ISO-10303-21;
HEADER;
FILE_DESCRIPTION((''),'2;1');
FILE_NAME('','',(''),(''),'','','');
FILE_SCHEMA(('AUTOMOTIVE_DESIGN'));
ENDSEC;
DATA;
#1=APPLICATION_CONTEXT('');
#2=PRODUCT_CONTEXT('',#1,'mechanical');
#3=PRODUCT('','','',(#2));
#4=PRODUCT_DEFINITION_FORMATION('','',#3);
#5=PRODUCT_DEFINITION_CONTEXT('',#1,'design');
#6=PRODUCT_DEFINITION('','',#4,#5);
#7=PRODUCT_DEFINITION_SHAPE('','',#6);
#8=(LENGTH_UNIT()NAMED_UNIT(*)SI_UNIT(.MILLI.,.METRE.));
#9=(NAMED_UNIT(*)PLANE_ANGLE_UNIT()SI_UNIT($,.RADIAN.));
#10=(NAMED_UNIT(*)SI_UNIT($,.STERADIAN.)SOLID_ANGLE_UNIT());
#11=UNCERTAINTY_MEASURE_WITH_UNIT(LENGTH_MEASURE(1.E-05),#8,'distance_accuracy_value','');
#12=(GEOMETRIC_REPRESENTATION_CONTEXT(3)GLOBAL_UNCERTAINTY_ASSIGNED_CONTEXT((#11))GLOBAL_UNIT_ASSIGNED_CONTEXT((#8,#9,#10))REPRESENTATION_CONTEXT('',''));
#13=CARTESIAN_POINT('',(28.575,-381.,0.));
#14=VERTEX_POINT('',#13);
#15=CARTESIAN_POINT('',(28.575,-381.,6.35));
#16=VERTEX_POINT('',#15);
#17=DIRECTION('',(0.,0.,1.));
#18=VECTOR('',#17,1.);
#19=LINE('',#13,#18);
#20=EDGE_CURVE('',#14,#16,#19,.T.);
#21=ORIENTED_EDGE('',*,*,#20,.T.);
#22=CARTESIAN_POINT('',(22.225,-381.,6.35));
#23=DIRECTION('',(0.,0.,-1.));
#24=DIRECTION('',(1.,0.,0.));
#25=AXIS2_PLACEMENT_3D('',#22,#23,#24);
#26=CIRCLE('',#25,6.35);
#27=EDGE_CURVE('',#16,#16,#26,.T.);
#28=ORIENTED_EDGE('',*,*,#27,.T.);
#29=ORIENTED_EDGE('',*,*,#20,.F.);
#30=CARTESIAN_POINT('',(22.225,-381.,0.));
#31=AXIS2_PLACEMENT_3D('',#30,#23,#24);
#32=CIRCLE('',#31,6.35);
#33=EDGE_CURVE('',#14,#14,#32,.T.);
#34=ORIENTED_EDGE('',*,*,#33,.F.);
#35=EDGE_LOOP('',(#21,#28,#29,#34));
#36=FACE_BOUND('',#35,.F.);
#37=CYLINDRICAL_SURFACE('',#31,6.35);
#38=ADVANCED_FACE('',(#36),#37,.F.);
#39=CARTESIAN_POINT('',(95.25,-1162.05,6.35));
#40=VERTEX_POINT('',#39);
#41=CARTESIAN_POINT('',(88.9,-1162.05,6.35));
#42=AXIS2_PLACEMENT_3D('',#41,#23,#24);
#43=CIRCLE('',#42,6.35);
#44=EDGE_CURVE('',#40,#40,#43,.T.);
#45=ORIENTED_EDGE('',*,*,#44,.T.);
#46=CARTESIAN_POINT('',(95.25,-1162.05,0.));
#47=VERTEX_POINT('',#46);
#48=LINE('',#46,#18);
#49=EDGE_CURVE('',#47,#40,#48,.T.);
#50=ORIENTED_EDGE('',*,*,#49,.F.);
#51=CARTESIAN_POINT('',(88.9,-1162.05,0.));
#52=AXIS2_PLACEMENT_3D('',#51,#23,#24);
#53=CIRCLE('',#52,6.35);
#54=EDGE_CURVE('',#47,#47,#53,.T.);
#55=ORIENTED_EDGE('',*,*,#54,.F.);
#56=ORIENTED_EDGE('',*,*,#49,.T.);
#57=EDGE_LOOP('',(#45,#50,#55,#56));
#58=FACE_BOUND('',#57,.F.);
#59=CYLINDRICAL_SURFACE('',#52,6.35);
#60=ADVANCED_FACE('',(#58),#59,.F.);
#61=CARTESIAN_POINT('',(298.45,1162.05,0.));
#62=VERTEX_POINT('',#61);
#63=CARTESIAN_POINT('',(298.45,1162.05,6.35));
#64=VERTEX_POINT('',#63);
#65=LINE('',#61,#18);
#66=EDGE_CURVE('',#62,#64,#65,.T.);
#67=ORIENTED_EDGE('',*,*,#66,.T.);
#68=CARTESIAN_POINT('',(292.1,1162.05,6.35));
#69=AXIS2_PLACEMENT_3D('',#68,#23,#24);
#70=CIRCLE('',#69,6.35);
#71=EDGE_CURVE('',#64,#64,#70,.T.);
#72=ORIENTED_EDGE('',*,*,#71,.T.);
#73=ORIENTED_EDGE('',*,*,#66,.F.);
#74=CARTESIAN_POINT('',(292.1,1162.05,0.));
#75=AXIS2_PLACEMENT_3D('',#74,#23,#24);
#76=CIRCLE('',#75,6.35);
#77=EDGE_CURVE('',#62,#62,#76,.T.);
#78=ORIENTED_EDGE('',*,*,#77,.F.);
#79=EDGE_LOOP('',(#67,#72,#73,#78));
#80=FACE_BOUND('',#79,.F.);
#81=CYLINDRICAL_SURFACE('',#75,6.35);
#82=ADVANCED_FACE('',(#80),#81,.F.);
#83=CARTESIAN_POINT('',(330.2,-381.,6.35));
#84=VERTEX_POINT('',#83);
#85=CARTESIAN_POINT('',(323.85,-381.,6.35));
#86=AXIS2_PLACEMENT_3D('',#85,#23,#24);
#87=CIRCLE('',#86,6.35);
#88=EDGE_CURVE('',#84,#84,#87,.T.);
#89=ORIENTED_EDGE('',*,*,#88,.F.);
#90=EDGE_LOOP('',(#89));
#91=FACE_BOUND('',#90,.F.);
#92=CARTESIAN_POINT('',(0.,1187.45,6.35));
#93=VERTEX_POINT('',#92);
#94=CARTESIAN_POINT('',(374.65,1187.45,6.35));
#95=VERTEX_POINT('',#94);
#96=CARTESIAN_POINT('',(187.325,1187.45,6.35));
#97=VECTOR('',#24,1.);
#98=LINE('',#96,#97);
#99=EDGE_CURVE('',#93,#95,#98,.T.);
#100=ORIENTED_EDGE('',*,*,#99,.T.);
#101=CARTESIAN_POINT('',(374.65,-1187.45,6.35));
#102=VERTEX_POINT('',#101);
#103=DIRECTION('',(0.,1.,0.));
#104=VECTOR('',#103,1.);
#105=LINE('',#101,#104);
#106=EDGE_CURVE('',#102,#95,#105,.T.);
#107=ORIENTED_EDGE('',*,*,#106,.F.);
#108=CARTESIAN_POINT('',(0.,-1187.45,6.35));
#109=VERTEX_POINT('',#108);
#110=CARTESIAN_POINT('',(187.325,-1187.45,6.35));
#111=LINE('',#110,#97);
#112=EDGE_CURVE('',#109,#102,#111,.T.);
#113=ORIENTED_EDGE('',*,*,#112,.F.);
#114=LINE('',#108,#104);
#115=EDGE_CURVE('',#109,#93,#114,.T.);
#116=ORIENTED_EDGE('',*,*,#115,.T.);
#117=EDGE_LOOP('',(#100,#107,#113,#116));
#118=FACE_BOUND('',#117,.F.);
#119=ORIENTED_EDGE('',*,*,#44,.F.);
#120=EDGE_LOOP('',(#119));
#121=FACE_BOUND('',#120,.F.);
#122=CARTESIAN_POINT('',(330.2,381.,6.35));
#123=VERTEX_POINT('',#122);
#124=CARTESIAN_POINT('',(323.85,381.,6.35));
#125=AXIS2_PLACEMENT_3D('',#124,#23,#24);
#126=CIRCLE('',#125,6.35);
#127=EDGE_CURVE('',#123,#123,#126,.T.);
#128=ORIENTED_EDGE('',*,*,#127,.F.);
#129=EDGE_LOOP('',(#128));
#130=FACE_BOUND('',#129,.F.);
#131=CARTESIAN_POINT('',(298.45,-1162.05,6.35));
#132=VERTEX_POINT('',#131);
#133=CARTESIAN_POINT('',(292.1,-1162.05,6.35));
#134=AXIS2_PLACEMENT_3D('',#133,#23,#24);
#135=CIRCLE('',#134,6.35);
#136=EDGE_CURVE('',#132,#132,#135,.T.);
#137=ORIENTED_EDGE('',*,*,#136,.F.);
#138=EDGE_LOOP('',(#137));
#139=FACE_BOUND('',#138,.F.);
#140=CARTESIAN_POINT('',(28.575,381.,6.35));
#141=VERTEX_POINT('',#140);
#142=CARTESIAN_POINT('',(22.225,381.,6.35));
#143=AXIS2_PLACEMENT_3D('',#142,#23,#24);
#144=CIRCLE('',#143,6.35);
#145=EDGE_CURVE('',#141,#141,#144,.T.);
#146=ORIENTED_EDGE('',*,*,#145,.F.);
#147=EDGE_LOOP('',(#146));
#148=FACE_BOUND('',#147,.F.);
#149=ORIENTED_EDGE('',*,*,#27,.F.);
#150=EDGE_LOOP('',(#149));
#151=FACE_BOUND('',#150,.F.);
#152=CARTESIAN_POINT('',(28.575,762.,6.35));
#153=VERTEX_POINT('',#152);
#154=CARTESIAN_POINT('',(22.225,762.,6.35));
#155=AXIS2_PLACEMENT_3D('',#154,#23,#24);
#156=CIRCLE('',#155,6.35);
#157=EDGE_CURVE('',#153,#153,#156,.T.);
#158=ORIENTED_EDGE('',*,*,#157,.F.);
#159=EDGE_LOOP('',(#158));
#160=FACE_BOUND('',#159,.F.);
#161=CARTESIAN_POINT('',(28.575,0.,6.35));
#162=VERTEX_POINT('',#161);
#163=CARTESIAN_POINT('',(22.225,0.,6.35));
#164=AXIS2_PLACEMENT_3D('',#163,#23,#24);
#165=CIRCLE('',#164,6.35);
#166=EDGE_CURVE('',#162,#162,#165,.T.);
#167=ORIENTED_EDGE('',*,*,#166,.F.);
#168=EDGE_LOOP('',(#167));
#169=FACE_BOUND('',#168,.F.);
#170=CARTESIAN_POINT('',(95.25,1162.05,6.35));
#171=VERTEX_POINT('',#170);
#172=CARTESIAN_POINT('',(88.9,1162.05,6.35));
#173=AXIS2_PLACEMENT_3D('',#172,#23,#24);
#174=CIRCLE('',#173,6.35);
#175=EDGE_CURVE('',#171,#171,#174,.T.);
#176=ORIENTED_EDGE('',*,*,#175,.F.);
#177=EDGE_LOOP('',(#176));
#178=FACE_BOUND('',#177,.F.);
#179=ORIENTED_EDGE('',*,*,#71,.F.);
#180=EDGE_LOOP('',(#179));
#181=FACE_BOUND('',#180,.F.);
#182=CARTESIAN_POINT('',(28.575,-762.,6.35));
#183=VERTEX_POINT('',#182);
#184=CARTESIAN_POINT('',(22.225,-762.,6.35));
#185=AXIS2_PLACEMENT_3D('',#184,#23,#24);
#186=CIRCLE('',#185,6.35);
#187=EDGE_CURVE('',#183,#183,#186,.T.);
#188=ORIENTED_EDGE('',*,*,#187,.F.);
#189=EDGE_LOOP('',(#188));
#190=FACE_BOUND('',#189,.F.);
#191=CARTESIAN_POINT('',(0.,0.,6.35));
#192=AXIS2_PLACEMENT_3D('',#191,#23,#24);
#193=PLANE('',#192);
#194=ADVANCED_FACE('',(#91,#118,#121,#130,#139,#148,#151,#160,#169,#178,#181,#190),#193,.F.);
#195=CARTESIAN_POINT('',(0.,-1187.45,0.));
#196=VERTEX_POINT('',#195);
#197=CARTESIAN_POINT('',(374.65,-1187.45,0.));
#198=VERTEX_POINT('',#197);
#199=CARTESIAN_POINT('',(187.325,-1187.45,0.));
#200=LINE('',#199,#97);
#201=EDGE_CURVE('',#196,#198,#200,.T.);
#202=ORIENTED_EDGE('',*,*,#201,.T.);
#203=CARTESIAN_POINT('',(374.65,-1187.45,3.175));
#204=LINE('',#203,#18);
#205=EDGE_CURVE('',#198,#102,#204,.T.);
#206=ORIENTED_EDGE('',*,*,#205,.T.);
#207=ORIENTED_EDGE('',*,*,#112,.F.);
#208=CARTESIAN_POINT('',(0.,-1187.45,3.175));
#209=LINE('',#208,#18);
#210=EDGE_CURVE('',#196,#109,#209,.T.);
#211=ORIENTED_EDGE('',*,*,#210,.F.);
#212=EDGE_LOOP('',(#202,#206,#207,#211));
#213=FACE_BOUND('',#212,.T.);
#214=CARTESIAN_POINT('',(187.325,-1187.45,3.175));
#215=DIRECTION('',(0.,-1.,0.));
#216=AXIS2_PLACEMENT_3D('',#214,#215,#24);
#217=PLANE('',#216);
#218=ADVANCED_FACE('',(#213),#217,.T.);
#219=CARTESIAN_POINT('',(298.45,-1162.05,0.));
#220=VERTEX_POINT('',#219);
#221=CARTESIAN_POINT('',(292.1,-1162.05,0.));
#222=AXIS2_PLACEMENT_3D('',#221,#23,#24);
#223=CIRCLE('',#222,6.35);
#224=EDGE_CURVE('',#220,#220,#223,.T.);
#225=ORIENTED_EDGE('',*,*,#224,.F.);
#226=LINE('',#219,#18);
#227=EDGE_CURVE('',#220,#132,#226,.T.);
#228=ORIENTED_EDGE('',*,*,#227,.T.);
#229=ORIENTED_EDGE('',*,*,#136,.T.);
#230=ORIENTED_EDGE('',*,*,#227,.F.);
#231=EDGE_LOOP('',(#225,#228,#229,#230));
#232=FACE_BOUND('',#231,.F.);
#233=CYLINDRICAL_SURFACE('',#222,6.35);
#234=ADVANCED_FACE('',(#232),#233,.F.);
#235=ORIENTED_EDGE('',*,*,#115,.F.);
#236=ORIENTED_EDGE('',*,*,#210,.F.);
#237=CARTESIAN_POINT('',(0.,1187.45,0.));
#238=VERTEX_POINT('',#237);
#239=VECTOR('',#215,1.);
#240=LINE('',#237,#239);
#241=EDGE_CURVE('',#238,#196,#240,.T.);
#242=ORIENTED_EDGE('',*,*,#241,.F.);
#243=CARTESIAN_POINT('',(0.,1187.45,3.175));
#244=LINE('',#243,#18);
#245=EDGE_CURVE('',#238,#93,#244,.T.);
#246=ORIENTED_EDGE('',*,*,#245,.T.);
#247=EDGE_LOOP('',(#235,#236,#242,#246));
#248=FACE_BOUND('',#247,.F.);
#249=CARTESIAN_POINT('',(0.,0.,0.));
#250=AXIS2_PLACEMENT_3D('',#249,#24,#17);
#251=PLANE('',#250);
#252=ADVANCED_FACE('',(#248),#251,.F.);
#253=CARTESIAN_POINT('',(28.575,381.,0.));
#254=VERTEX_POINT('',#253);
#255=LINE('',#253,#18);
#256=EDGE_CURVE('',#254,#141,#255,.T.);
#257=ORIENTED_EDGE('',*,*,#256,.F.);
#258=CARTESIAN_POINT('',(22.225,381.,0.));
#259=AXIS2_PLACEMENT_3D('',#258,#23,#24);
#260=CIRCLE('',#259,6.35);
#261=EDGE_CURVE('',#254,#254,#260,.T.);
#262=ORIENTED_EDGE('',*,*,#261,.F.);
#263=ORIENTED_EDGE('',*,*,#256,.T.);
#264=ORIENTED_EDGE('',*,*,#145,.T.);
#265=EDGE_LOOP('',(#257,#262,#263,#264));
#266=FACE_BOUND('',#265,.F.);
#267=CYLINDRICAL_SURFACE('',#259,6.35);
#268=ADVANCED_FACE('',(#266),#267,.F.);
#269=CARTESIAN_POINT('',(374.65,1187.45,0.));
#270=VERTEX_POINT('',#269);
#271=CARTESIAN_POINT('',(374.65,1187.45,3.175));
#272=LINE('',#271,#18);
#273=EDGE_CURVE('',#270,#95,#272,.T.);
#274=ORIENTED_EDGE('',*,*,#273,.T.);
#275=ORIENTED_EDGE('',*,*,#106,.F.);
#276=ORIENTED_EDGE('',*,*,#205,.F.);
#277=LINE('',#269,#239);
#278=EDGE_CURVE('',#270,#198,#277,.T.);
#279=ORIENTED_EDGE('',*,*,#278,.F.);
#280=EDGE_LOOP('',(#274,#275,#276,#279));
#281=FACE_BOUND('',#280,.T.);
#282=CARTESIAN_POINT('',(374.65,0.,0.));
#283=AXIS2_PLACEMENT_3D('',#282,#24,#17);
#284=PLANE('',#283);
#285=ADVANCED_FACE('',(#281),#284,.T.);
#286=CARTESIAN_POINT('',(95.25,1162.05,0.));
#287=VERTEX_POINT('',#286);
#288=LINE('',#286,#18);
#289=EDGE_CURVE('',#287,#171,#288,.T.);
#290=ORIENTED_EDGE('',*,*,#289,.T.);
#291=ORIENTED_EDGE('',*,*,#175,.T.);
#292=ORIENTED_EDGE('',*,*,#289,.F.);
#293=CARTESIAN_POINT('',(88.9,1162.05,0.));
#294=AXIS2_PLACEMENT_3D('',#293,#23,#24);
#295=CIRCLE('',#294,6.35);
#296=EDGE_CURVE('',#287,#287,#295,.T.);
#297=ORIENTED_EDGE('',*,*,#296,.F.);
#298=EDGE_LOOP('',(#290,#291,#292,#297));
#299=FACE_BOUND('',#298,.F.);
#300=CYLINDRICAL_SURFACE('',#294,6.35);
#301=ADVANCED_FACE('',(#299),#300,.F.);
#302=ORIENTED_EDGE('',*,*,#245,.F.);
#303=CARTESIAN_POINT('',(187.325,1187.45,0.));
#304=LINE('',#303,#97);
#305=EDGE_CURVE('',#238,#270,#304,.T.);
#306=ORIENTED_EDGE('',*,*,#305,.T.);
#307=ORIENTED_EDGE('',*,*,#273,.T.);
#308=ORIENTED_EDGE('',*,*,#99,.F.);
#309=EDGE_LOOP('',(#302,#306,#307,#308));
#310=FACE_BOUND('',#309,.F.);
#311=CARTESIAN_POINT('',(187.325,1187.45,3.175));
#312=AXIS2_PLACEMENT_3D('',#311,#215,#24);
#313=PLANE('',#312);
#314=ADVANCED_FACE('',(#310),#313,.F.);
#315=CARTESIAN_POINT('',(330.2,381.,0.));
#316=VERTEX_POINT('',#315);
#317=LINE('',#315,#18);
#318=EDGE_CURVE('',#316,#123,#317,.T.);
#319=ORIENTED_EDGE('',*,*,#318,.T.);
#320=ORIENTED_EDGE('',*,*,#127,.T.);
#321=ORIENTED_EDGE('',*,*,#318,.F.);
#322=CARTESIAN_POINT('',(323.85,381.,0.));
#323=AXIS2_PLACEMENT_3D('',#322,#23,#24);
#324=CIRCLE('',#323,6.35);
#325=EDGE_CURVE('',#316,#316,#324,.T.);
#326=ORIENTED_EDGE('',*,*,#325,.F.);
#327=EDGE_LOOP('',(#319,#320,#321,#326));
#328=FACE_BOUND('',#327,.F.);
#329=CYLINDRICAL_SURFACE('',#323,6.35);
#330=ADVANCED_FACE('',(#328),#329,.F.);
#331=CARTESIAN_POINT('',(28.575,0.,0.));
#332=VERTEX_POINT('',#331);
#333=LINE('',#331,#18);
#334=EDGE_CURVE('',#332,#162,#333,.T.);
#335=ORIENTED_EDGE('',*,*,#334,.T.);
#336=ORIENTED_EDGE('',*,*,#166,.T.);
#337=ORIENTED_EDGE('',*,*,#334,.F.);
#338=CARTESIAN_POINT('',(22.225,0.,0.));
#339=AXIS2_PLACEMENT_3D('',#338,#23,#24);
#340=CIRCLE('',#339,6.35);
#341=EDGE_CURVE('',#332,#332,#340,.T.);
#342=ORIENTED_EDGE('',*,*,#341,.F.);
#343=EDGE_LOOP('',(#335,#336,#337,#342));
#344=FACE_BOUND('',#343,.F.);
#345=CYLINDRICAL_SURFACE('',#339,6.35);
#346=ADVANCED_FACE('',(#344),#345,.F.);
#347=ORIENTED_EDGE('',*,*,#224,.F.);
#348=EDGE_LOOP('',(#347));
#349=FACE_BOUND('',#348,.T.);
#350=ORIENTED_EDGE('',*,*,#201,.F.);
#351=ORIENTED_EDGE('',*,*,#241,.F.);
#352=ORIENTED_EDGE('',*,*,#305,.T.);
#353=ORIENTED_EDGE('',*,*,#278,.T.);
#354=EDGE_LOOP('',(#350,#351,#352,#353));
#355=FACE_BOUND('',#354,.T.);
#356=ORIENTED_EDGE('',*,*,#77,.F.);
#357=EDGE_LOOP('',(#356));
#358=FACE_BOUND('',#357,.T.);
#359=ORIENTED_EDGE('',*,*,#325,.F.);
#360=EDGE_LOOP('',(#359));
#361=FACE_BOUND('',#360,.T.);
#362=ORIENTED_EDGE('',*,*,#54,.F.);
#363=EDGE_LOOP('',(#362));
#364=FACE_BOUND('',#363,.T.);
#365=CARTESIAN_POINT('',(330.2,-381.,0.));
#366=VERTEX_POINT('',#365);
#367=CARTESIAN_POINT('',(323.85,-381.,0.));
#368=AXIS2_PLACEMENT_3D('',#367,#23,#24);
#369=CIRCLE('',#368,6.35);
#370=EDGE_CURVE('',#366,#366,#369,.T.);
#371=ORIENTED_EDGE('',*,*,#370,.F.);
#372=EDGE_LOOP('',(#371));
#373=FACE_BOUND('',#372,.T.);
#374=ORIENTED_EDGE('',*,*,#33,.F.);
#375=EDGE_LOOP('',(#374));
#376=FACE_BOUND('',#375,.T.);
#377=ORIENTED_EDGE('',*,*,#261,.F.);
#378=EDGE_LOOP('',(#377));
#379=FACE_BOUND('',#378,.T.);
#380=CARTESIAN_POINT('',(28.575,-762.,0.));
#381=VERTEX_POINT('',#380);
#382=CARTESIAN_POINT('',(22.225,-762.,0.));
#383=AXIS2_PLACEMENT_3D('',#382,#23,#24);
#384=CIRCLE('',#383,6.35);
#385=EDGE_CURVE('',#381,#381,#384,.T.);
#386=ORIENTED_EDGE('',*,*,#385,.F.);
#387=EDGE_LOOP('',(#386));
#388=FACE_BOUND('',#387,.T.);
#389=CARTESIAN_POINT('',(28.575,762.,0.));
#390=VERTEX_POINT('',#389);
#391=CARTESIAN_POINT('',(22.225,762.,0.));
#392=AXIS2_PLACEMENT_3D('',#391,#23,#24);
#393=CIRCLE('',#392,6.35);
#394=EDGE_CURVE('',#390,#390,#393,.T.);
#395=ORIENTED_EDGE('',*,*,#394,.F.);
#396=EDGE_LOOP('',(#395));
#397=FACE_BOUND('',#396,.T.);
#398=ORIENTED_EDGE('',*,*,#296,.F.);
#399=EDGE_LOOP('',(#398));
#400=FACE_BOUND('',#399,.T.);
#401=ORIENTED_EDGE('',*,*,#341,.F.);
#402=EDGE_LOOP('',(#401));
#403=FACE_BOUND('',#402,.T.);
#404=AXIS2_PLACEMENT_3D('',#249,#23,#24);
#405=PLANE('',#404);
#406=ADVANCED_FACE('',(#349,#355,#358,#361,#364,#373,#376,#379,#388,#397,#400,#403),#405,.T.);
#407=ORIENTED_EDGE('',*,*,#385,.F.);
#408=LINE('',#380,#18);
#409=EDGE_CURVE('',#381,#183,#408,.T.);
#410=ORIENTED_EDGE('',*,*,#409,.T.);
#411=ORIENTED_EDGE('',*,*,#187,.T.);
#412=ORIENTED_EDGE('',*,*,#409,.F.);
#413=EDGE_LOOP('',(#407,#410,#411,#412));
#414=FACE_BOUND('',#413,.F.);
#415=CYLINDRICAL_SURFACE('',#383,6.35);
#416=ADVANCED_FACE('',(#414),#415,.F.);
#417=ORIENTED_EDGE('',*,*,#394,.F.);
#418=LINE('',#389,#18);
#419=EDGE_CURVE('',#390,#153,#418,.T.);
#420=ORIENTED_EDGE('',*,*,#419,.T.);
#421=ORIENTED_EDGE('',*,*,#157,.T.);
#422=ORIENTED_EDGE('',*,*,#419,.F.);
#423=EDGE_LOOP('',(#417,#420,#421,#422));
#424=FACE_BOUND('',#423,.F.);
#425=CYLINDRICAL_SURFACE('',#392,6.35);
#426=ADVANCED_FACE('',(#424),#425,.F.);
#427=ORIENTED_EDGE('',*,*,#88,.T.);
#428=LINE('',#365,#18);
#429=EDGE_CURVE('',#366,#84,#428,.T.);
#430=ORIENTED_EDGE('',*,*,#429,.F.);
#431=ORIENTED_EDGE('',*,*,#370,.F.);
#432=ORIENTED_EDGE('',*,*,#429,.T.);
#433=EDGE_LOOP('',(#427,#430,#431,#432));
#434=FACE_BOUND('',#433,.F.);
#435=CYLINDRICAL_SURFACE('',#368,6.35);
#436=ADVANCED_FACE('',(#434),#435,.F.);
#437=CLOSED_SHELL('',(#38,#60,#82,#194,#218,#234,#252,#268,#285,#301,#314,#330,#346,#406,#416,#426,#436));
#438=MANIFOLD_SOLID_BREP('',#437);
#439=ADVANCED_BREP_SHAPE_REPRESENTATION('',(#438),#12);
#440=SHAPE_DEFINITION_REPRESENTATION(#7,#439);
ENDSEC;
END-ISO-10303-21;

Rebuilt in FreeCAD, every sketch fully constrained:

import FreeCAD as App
import Part
import Sketcher
Q = App.Units.Quantity

doc = App.newDocument("Part")
body = doc.addObject("PartDesign::Body", "Body")

# Sketch on XZ plane
sketch1 = doc.addObject("Sketcher::SketchObject", "Sketch")
body.addObject(sketch1)
sketch1.AttachmentSupport = (doc.XZ_Plane, [""])
sketch1.MapMode = "FlatFace"
sketch1.addGeometry([
    Part.LineSegment(App.Vector(0, 6, 0), App.Vector(0, 0, 0)),
    Part.LineSegment(App.Vector(0, 0, 0), App.Vector(375, 0, 0)),
    Part.LineSegment(App.Vector(375, 0, 0), App.Vector(375, 6, 0)),
    Part.LineSegment(App.Vector(375, 6, 0), App.Vector(0, 6, 0)),
], False)
sketch1.addConstraint([
    Sketcher.Constraint("Coincident", 0, 2, 1, 1),
    Sketcher.Constraint("Coincident", 1, 2, 2, 1),
    Sketcher.Constraint("Coincident", 2, 2, 3, 1),
    Sketcher.Constraint("Coincident", 3, 2, 0, 1),
    Sketcher.Constraint("Vertical", 0),
    Sketcher.Constraint("Horizontal", 1),
    Sketcher.Constraint("Vertical", 2),
    Sketcher.Constraint("Horizontal", 3),
    Sketcher.Constraint("Coincident", 0, 2, -1, 1),
    Sketcher.Constraint("DistanceX", 1, 1, 1, 2, Q("14.75 in")),
    Sketcher.Constraint("DistanceY", 0, 2, 0, 1, Q("0.25 in")),
])
pad1 = doc.addObject("PartDesign::Pad", "Pad")
body.addObject(pad1)
pad1.Profile = sketch1
pad1.Length = Q("93.5 in")
pad1.Midplane = True

# Sketch on XY plane
sketch2 = doc.addObject("Sketcher::SketchObject", "Sketch001")
body.addObject(sketch2)
sketch2.AttachmentSupport = (doc.XY_Plane, [""])
sketch2.MapMode = "FlatFace"
sketch2.addGeometry([
    Part.Circle(App.Vector(292, -1162, 0), App.Vector(0, 0, 1), 6),  # 0
    Part.Circle(App.Vector(89, -1162, 0), App.Vector(0, 0, 1), 6),  # 1
    Part.Circle(App.Vector(292, 1162, 0), App.Vector(0, 0, 1), 6),  # 2
    Part.Circle(App.Vector(89, 1162, 0), App.Vector(0, 0, 1), 6),  # 3
    Part.Circle(App.Vector(22, -381, 0), App.Vector(0, 0, 1), 6),  # 4
    Part.Circle(App.Vector(22, 381, 0), App.Vector(0, 0, 1), 6),  # 5
    Part.Circle(App.Vector(22, -762, 0), App.Vector(0, 0, 1), 6),  # 6
    Part.Circle(App.Vector(22, 0, 0), App.Vector(0, 0, 1), 6),  # 7
    Part.Circle(App.Vector(22, 762, 0), App.Vector(0, 0, 1), 6),  # 8
    Part.Circle(App.Vector(324, -381, 0), App.Vector(0, 0, 1), 6),  # 9
    Part.Circle(App.Vector(324, 381, 0), App.Vector(0, 0, 1), 6),  # 10
], False)
sketch2.addConstraint([
    Sketcher.Constraint("Equal", 0, 1),
    Sketcher.Constraint("Equal", 1, 2),
    Sketcher.Constraint("Equal", 2, 3),
    Sketcher.Constraint("Equal", 3, 4),
    Sketcher.Constraint("Equal", 4, 5),
    Sketcher.Constraint("Equal", 5, 6),
    Sketcher.Constraint("Equal", 6, 7),
    Sketcher.Constraint("Equal", 7, 8),
    Sketcher.Constraint("Equal", 8, 9),
    Sketcher.Constraint("Equal", 9, 10),
    Sketcher.Constraint("Symmetric", 0, 3, 2, 3, -1),
    Sketcher.Constraint("Symmetric", 1, 3, 3, 3, -1),
    Sketcher.Constraint("Symmetric", 4, 3, 5, 3, -1),
    Sketcher.Constraint("Symmetric", 6, 3, 8, 3, -1),
    Sketcher.Constraint("Symmetric", 9, 3, 10, 3, -1),
    Sketcher.Constraint("PointOnObject", 7, 3, -1),
    Sketcher.Constraint("Horizontal", 0, 3, 1, 3),
    Sketcher.Constraint("Horizontal", 4, 3, 9, 3),
    Sketcher.Constraint("Vertical", 5, 3, 6, 3),
    Sketcher.Constraint("Vertical", 6, 3, 7, 3),
    Sketcher.Constraint("Diameter", 0, Q("0.5 in")),
    Sketcher.Constraint("DistanceY", 4, 3, -1, 1, Q("15 in")),
    Sketcher.Constraint("DistanceY", 6, 3, -1, 1, Q("30 in")),
    Sketcher.Constraint("DistanceX", 1, 3, 0, 3, Q("8 in")),
    Sketcher.Constraint("DistanceX", -1, 1, 0, 3, Q("11.5 in")),
    Sketcher.Constraint("DistanceY", 0, 3, 2, 3, Q("91.5 in")),
    Sketcher.Constraint("DistanceX", -1, 1, 9, 3, Q("12.75 in")),
    Sketcher.Constraint("DistanceX", -1, 1, 4, 3, Q("0.875 in")),
])
pocket1 = doc.addObject("PartDesign::Pocket", "Pocket")
body.addObject(pocket1)
pocket1.Profile = sketch2
pocket1.Type = "ThroughAll"
pocket1.Reversed = True

doc.recompute()
